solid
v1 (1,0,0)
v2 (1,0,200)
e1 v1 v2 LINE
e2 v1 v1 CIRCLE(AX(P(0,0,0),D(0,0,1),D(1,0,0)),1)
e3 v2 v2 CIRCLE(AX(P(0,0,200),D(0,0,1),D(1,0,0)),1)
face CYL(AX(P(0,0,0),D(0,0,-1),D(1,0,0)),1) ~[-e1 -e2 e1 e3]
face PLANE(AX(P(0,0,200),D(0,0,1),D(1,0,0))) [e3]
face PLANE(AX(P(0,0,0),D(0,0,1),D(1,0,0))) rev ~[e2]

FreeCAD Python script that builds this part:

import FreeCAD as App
import Part
import Sketcher

V = App.Vector

doc = App.newDocument("Part")
body = doc.addObject("PartDesign::Body", "Body")

# Sketch on XY plane
sketch1 = body.newObject("Sketcher::SketchObject", "Sketch")
sketch1.AttachmentSupport = (doc.getObject("XY_Plane"), [""])
sketch1.MapMode = "FlatFace"
sketch1.addGeometry(Part.Circle(V(0, 0, 0), V(0, 0, 1), 1), False)
sketch1.addConstraint([
    Sketcher.Constraint("Coincident", 0, 3, -1, 1),
    Sketcher.Constraint("Diameter", 0, 2.0),
])
pad1 = body.newObject("PartDesign::Pad", "Pad")
pad1.Profile = sketch1
pad1.Length = 200

doc.recompute()
